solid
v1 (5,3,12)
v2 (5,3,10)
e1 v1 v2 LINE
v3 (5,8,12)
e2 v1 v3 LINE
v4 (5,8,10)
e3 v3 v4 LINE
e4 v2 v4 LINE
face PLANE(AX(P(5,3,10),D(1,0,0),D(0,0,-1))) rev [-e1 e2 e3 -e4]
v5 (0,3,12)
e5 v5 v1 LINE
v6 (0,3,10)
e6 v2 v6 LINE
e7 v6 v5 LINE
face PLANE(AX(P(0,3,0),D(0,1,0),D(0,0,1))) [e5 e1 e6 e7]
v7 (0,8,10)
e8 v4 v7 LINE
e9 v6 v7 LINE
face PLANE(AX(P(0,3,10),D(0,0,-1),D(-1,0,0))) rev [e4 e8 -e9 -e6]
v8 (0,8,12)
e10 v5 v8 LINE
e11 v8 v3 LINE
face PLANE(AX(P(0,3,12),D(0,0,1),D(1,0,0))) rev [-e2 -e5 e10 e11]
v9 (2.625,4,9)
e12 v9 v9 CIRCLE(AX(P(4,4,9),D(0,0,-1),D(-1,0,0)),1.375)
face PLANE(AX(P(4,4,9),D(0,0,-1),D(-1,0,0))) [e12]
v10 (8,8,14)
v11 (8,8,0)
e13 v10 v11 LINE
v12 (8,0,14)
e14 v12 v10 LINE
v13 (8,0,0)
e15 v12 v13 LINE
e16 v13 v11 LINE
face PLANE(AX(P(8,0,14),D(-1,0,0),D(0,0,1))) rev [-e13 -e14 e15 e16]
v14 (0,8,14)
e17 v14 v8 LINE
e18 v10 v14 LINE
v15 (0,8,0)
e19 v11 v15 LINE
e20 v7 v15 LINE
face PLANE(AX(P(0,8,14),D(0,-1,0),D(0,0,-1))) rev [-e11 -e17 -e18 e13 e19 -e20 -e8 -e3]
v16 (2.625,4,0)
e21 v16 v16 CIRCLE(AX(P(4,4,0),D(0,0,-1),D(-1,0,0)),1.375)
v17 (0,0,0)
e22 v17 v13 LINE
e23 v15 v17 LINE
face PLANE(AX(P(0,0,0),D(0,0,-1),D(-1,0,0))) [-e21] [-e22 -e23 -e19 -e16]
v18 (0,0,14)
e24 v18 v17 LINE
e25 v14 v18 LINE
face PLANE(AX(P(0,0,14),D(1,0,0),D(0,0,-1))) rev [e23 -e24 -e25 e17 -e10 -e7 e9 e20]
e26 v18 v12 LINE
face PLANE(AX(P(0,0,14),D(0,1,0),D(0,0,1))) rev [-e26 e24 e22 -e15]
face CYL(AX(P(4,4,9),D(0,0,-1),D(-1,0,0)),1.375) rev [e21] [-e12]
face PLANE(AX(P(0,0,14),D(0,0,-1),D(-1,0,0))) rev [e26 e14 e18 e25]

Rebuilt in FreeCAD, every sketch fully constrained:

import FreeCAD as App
import Part
import Sketcher


def add_polygon(sketch, points):
    """Adds a closed chain of lines whose ends are joined by coincident constraints."""
    first, n = sketch.GeometryCount, len(points)
    for a, b in zip(points, points[1:] + points[:1]):
        sketch.addGeometry(Part.LineSegment(App.Vector(*a, 0), App.Vector(*b, 0)), False)
    for i in range(n):
        sketch.addConstraint(Sketcher.Constraint("Coincident", first + i, 2, first + (i + 1) % n, 1))

doc = App.newDocument("Part")
params = doc.addObject("Spreadsheet::Sheet", "Params")
for row, (alias, value) in enumerate([
    ("sketch1_width", "8 mm"),
    ("pad1_length", "14 mm"),
    ("sketch2_width", "5 mm"),
    ("sketch2_height", "2 mm"),
    ("pocket1_length", "5 mm"),
    ("sketch3_diameter", "2.75 mm"),
    ("pocket2_length", "9 mm"),
], start=1):
    params.set(f"A{row}", alias)
    params.set(f"B{row}", "=" + value)
    params.setAlias(f"B{row}", alias)

body = doc.addObject("PartDesign::Body", "Body")

# Sketch on XY plane
sketch1 = body.newObject("Sketcher::SketchObject", "Sketch")
sketch1.AttachmentSupport = (doc.getObject("XY_Plane"), [""])
sketch1.MapMode = "FlatFace"
add_polygon(sketch1, [(0, 8), (0, 0), (8, 0), (8, 8)])  # lines 0-3
sketch1.addConstraint([
    Sketcher.Constraint("Vertical", 0),
    Sketcher.Constraint("Horizontal", 1),
    Sketcher.Constraint("Vertical", 2),
    Sketcher.Constraint("Horizontal", 3),
    Sketcher.Constraint("Coincident", 0, 2, -1, 1),
    Sketcher.Constraint("Equal", 3, 0),
    Sketcher.Constraint("DistanceX", 1, 1, 1, 2, 8.0),
])
sketch1.setExpression("Constraints[10]", "Params.sketch1_width")
pad1 = body.newObject("PartDesign::Pad", "Pad")
pad1.Profile = sketch1
pad1.setExpression("Length", "Params.pad1_length")

# Sketch on XZ plane
sketch2 = body.newObject("Sketcher::SketchObject", "Sketch001")
sketch2.AttachmentSupport = (doc.getObject("XZ_Plane"), [""])
sketch2.MapMode = "FlatFace"
sketch2.AttachmentOffset = App.Placement(App.Vector(0, 0, -8), App.Rotation())
add_polygon(sketch2, [(0, 10), (0, 12), (5, 12), (5, 10)])  # lines 0-3
sketch2.addConstraint([
    Sketcher.Constraint("Vertical", 0),
    Sketcher.Constraint("Horizontal", 1),
    Sketcher.Constraint("Vertical", 2),
    Sketcher.Constraint("Horizontal", 3),
    Sketcher.Constraint("PointOnObject", 0, 2, -2),
    Sketcher.Constraint("DistanceX", 1, 1, 1, 2, 5.0),
    Sketcher.Constraint("DistanceY", 0, 1, 0, 2, 2.0),
    Sketcher.Constraint("DistanceY", -1, 1, 0, 2, 12.0),
])
sketch2.setExpression("Constraints[9]", "Params.sketch2_width")
sketch2.setExpression("Constraints[10]", "Params.sketch2_height")
pocket1 = body.newObject("PartDesign::Pocket", "Pocket")
pocket1.Profile = sketch2
pocket1.setExpression("Length", "Params.pocket1_length")
pocket1.Reversed = True

# Sketch on XY plane
sketch3 = body.newObject("Sketcher::SketchObject", "Sketch002")
sketch3.AttachmentSupport = (doc.getObject("XY_Plane"), [""])
sketch3.MapMode = "FlatFace"
sketch3.addGeometry(Part.Circle(App.Vector(4, 4, 0), App.Vector(0, 0, 1), 1.375), False)
sketch3.addConstraint([
    Sketcher.Constraint("Diameter", 0, 2.75),
    Sketcher.Constraint("DistanceX", -1, 1, 0, 3, 4.0),
    Sketcher.Constraint("DistanceY", -1, 1, 0, 3, 4.0),
])
sketch3.setExpression("Constraints[0]", "Params.sketch3_diameter")
pocket2 = body.newObject("PartDesign::Pocket", "Pocket001")
pocket2.Profile = sketch3
pocket2.setExpression("Length", "Params.pocket2_length")
pocket2.Reversed = True

doc.recompute()
